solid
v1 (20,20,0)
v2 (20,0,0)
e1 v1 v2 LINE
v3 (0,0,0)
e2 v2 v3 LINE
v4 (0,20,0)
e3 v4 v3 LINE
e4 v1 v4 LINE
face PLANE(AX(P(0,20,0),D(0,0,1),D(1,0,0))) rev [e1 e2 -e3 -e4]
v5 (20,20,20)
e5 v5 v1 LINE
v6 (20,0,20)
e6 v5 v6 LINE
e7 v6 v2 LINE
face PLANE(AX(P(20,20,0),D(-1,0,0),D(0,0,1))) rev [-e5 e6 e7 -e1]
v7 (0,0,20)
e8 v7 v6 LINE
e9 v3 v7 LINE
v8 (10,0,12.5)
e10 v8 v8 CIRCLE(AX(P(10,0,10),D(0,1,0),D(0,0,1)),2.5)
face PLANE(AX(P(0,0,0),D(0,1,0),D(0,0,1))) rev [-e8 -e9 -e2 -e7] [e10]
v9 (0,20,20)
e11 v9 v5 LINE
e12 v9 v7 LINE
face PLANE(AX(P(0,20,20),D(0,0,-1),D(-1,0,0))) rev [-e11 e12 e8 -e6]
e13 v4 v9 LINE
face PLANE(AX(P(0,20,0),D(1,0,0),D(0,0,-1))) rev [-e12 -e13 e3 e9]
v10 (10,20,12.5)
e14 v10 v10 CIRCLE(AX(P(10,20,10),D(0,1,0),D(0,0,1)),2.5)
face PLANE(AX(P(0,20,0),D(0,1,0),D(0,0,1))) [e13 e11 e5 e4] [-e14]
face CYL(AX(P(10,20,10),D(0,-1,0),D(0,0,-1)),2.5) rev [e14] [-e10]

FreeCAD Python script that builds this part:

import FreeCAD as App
import Part
import Sketcher

V = App.Vector
Q = App.Units.Quantity


def add_polygon(sketch, points):
    """Adds a closed chain of lines whose ends are joined by coincident constraints."""
    first, n = sketch.GeometryCount, len(points)
    for a, b in zip(points, points[1:] + points[:1]):
        sketch.addGeometry(Part.LineSegment(App.Vector(*a, 0), App.Vector(*b, 0)), False)
    for i in range(n):
        sketch.addConstraint(Sketcher.Constraint("Coincident", first + i, 2, first + (i + 1) % n, 1))

doc = App.newDocument("Part")
body = doc.addObject("PartDesign::Body", "Body")

# Sketch on XZ plane
sketch1 = doc.addObject("Sketcher::SketchObject", "Sketch")
body.addObject(sketch1)
sketch1.AttachmentSupport = (doc.XZ_Plane, [""])
sketch1.MapMode = "FlatFace"
add_polygon(sketch1, [(0, 0), (0, 20), (20, 20), (20, 0)])  # lines 0-3
sketch1.addGeometry(Part.Circle(V(10, 10, 0), V(0, 0, 1), 2.5), False)  # 4
sketch1.addConstraint([
    Sketcher.Constraint("Vertical", 0),
    Sketcher.Constraint("Horizontal", 1),
    Sketcher.Constraint("Vertical", 2),
    Sketcher.Constraint("Horizontal", 3),
    Sketcher.Constraint("Coincident", 3, 2, -1, 1),
    Sketcher.Constraint("Equal", 3, 0),
    Sketcher.Constraint("Diameter", 4, Q("5 mm")),
    Sketcher.Constraint("DistanceX", 1, 1, 1, 2, Q("20 mm")),
    Sketcher.Constraint("DistanceX", -1, 1, 4, 3, Q("10 mm")),
    Sketcher.Constraint("DistanceY", -1, 1, 4, 3, Q("10 mm")),
])
pad1 = doc.addObject("PartDesign::Pad", "Pad")
body.addObject(pad1)
pad1.Profile = sketch1
pad1.Length = 20
pad1.Reversed = True

doc.recompute()
